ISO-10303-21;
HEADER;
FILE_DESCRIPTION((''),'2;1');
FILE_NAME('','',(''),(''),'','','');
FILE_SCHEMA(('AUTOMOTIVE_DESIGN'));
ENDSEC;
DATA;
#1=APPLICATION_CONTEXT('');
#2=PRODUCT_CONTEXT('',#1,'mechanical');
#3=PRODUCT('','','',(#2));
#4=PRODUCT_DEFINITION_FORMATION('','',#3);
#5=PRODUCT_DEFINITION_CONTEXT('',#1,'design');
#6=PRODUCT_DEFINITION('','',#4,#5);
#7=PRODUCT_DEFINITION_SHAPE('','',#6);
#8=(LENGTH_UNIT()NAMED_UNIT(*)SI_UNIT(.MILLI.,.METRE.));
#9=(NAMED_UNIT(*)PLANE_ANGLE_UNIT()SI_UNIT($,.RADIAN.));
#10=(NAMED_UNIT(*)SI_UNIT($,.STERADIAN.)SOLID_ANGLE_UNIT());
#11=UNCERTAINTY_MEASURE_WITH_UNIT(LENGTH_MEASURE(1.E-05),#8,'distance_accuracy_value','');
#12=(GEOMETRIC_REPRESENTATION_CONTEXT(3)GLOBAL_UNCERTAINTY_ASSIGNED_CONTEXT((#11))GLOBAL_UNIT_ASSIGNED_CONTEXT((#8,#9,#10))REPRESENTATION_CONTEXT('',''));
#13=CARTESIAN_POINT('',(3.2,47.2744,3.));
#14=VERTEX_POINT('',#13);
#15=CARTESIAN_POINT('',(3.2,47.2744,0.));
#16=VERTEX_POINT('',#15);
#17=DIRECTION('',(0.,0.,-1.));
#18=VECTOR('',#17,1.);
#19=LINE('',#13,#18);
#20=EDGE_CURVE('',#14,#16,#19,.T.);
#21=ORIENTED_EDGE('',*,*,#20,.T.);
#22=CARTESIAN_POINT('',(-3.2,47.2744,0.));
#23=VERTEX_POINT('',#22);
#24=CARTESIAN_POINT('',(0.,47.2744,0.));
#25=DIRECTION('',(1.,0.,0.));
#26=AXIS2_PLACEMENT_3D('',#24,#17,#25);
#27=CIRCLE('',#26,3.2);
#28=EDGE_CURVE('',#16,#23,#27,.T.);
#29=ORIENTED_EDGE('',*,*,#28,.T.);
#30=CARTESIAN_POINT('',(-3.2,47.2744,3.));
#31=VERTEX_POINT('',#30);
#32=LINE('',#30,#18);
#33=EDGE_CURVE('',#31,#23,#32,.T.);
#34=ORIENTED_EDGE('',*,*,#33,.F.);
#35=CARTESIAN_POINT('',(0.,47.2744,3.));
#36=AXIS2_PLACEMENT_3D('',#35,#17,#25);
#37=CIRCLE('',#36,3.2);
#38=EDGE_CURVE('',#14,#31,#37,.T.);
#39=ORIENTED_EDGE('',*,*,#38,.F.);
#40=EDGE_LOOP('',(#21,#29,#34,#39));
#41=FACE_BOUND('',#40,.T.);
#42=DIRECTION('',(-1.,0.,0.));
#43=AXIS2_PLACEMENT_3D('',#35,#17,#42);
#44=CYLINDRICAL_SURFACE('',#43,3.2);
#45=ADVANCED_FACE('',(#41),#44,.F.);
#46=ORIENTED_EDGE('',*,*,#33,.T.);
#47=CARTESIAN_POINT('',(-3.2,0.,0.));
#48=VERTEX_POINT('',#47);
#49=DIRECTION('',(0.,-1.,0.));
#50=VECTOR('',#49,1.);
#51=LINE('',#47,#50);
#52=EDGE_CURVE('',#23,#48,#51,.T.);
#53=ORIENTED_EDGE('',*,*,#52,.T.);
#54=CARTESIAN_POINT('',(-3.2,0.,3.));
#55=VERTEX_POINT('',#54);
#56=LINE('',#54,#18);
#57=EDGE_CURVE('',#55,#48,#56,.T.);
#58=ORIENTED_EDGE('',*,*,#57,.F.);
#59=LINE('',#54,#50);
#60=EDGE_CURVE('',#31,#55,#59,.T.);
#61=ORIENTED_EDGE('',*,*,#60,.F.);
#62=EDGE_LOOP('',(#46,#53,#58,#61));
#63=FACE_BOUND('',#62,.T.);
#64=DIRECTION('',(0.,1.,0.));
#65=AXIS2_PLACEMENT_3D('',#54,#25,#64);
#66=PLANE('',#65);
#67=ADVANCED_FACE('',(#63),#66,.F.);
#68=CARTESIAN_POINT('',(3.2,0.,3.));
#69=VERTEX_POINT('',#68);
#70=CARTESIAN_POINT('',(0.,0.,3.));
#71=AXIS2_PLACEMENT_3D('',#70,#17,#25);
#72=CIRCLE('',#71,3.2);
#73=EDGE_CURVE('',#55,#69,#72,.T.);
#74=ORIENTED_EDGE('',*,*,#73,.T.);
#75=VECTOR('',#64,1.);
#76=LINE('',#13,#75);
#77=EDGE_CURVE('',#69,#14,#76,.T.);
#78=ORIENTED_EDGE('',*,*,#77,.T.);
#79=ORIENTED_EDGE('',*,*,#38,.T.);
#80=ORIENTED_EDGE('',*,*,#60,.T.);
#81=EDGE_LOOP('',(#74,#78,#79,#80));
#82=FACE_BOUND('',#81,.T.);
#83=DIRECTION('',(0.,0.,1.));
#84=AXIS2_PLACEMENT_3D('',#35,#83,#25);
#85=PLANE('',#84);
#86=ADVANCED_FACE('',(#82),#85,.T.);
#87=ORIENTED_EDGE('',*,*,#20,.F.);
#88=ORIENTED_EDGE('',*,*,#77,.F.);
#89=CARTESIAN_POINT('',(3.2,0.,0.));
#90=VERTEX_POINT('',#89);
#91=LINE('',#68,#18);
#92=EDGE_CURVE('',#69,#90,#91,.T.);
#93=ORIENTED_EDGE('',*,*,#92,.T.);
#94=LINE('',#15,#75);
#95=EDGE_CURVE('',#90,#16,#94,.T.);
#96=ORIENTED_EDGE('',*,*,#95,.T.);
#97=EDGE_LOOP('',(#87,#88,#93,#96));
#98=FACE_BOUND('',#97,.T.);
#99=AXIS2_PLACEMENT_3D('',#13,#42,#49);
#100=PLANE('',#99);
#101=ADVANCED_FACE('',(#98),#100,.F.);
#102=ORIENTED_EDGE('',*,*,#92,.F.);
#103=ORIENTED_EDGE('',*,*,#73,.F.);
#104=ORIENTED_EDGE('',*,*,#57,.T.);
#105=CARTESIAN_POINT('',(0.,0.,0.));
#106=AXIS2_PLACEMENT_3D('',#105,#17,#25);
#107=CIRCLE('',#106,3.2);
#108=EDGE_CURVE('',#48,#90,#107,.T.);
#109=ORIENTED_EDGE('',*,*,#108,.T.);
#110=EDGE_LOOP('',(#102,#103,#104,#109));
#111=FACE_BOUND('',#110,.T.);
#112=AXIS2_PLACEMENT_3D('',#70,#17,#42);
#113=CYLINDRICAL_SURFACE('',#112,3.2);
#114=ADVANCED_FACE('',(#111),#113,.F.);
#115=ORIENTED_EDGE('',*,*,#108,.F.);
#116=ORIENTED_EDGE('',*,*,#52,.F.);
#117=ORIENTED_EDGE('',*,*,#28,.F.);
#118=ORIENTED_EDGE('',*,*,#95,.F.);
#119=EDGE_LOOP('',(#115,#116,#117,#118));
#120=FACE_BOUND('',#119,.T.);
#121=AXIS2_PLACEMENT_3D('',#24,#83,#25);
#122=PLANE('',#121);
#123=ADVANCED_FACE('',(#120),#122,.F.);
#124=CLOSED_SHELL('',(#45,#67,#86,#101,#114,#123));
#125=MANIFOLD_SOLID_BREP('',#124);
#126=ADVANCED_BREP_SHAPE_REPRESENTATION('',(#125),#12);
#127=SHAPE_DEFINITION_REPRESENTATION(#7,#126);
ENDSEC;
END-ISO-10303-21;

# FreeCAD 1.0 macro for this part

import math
import FreeCAD as App
import Part
import Sketcher
from FreeCAD import Vector

doc = App.newDocument("Part")
body = doc.addObject("PartDesign::Body", "Body")

# Sketch on XY plane
sketch1 = body.newObject("Sketcher::SketchObject", "Sketch")
sketch1.AttachmentSupport = (doc.getObject("XY_Plane"), [""])
sketch1.MapMode = "FlatFace"
sketch1.addGeometry([
    Part.LineSegment(Vector(-3.2, 47.2744, 0), Vector(-3.2, 0, 0)),
    Part.ArcOfCircle(Part.Circle(Vector(0, 0, 0), Vector(0, 0, 1), 3.2), math.radians(0), math.radians(180)),
    Part.LineSegment(Vector(3.2, 0, 0), Vector(3.2, 47.2744, 0)),
    Part.ArcOfCircle(Part.Circle(Vector(0, 47.2744, 0), Vector(0, 0, 1), 3.2), math.radians(180), math.radians(360)),
], False)
sketch1.addConstraint([
    Sketcher.Constraint("Tangent", 0, 2, 1, 2),
    Sketcher.Constraint("Tangent", 1, 1, 2, 1),
    Sketcher.Constraint("Tangent", 2, 2, 3, 2),
    Sketcher.Constraint("Tangent", 3, 1, 0, 1),
    Sketcher.Constraint("Vertical", 0),
    Sketcher.Constraint("Vertical", 2),
    Sketcher.Constraint("Coincident", 1, 3, -1, 1),
    Sketcher.Constraint("Radius", 1, 3.2),
    Sketcher.Constraint("DistanceY", 0, 2, 0, 1, 47.2744),
])
pad1 = body.newObject("PartDesign::Pad", "Pad")
pad1.Profile = sketch1
pad1.Length = 3

doc.recompute()
